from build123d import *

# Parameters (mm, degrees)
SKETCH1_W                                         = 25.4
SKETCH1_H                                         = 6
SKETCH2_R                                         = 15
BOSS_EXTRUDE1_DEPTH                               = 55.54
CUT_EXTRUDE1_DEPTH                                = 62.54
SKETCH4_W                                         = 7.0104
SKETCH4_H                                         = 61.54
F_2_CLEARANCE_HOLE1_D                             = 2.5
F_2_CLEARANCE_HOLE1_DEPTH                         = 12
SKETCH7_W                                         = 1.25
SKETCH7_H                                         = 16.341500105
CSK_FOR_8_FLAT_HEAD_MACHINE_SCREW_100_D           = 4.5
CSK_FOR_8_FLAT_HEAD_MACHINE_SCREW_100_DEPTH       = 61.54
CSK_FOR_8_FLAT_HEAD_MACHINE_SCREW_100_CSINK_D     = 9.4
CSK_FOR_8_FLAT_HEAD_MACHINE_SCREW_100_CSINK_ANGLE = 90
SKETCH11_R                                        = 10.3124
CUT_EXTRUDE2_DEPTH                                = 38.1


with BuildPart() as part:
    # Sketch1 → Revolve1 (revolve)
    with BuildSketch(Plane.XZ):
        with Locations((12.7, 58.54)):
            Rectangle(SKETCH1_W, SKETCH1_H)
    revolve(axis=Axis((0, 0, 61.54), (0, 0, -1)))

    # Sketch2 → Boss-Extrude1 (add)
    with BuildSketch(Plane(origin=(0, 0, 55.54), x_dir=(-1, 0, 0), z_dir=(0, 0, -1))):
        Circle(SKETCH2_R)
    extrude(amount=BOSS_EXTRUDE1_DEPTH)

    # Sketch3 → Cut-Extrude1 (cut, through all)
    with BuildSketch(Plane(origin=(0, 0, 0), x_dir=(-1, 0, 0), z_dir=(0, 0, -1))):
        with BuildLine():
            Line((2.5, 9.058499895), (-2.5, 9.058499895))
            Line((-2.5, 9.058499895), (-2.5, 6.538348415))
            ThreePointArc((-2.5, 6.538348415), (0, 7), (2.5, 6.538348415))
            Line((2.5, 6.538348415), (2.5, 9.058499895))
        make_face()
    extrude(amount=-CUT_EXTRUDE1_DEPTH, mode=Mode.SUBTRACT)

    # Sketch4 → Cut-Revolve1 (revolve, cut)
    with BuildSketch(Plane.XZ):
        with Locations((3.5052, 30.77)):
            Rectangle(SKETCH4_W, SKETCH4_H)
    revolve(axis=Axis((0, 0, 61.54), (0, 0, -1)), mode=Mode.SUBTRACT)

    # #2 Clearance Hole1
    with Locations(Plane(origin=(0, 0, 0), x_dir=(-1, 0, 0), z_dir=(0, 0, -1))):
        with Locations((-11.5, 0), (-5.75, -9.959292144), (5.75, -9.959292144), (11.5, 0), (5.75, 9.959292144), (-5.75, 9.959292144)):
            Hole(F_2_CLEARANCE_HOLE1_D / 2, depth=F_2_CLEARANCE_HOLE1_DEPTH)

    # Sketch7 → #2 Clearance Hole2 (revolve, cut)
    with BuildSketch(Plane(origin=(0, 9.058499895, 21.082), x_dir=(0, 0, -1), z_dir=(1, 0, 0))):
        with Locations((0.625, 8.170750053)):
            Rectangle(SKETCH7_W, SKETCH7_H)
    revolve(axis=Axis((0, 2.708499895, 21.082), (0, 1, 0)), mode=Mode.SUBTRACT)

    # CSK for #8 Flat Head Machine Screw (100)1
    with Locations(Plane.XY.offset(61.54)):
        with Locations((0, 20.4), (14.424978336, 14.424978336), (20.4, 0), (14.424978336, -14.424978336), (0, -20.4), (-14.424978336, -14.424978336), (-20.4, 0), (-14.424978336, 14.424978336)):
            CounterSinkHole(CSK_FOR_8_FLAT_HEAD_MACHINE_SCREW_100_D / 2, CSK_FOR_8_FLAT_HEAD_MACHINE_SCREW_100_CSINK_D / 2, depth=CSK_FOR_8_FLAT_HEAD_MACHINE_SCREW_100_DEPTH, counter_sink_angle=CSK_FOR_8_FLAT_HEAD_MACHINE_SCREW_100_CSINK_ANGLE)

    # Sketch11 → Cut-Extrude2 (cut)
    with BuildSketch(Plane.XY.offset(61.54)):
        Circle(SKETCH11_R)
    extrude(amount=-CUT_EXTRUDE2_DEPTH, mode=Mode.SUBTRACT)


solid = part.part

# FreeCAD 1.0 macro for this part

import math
import FreeCAD as App
import Part
import Sketcher
Q = App.Units.Quantity

doc = App.newDocument("Part")
body = doc.addObject("PartDesign::Body", "Body")

sketch1 = body.newObject("Sketcher::SketchObject", "Sketch")
sketch1.AttachmentSupport = (doc.getObject("XZ_Plane"), [""])
sketch1.MapMode = "FlatFace"
sketch1.addGeometry([
    Part.LineSegment(App.Vector(0, 61.54, 0), App.Vector(0, 55.54, 0)),
    Part.LineSegment(App.Vector(0, 55.54, 0), App.Vector(25.4, 55.54, 0)),
    Part.LineSegment(App.Vector(25.4, 55.54, 0), App.Vector(25.4, 61.54, 0)),
    Part.LineSegment(App.Vector(25.4, 61.54, 0), App.Vector(0, 61.54, 0)),
], False)
sketch1.addConstraint([
    Sketcher.Constraint("Coincident", 0, 2, 1, 1),
    Sketcher.Constraint("Coincident", 1, 2, 2, 1),
    Sketcher.Constraint("Coincident", 2, 2, 3, 1),
    Sketcher.Constraint("Coincident", 3, 2, 0, 1),
    Sketcher.Constraint("Vertical", 0),
    Sketcher.Constraint("Horizontal", 1),
    Sketcher.Constraint("Vertical", 2),
    Sketcher.Constraint("Horizontal", 3),
    Sketcher.Constraint("PointOnObject", 0, 2, -2),
    Sketcher.Constraint("DistanceY", 0, 2, 0, 1, Q("6 mm")),
    Sketcher.Constraint("DistanceX", 1, 1, 1, 2, Q("25.4 mm")),
    Sketcher.Constraint("DistanceY", -1, 1, 0, 2, Q("55.54 mm")),
])
revolution = body.newObject("PartDesign::Revolution", "Revolution")
revolution.Profile = sketch1
revolution.ReferenceAxis = (sketch1, ["V_Axis"])
revolution.Angle = 360

sketch2 = body.newObject("Sketcher::SketchObject", "Sketch001")
sketch2.AttachmentSupport = (doc.getObject("XY_Plane"), [""])
sketch2.MapMode = "FlatFace"
sketch2.AttachmentOffset = App.Placement(App.Vector(0, 0, 55.54), App.Rotation())
sketch2.addGeometry(Part.Circle(App.Vector(0, 0, 0), App.Vector(0, 0, 1), 15), False)
sketch2.addConstraint([
    Sketcher.Constraint("Coincident", 0, 3, -1, 1),
    Sketcher.Constraint("Diameter", 0, Q("30 mm")),
])
pad1 = body.newObject("PartDesign::Pad", "Pad")
pad1.Profile = sketch2
pad1.Length = 55.54
pad1.Reversed = True

sketch3 = body.newObject("Sketcher::SketchObject", "Sketch002")
sketch3.AttachmentSupport = (doc.getObject("XY_Plane"), [""])
sketch3.MapMode = "FlatFace"
sketch3.addGeometry([
    Part.LineSegment(App.Vector(-2.5, 9.0585, 0), App.Vector(2.5, 9.0585, 0)),
    Part.LineSegment(App.Vector(2.5, 9.0585, 0), App.Vector(2.5, 6.538348, 0)),
    Part.ArcOfCircle(Part.Circle(App.Vector(0, 0, 0), App.Vector(0, 0, 1), 7), math.radians(69.075168), math.radians(110.924832)),
    Part.LineSegment(App.Vector(-2.5, 6.538348, 0), App.Vector(-2.5, 9.0585, 0)),
], False)
sketch3.addConstraint([
    Sketcher.Constraint("Coincident", 0, 2, 1, 1),
    Sketcher.Constraint("Coincident", 1, 2, 2, 1),
    Sketcher.Constraint("Coincident", 2, 2, 3, 1),
    Sketcher.Constraint("Coincident", 3, 2, 0, 1),
    Sketcher.Constraint("Horizontal", 0),
    Sketcher.Constraint("Vertical", 1),
    Sketcher.Constraint("Vertical", 3),
    Sketcher.Constraint("Coincident", 2, 3, -1, 1),
    Sketcher.Constraint("Horizontal", 1, 2, 2, 2),
    Sketcher.Constraint("Radius", 2, Q("7 mm")),
    Sketcher.Constraint("DistanceX", 0, 1, 0, 2, Q("5 mm")),
    Sketcher.Constraint("DistanceY", 1, 2, 1, 1, Q("2.520151 mm")),
])
pocket1 = body.newObject("PartDesign::Pocket", "Pocket")
pocket1.Profile = sketch3
pocket1.Type = "ThroughAll"
pocket1.Reversed = True

sketch4 = body.newObject("Sketcher::SketchObject", "Sketch003")
sketch4.AttachmentSupport = (doc.getObject("XZ_Plane"), [""])
sketch4.MapMode = "FlatFace"
sketch4.addGeometry([
    Part.LineSegment(App.Vector(0, 61.54, 0), App.Vector(0, 0, 0)),
    Part.LineSegment(App.Vector(0, 0, 0), App.Vector(7.0104, 0, 0)),
    Part.LineSegment(App.Vector(7.0104, 0, 0), App.Vector(7.0104, 61.54, 0)),
    Part.LineSegment(App.Vector(7.0104, 61.54, 0), App.Vector(0, 61.54, 0)),
], False)
sketch4.addConstraint([
    Sketcher.Constraint("Coincident", 0, 2, 1, 1),
    Sketcher.Constraint("Coincident", 1, 2, 2, 1),
    Sketcher.Constraint("Coincident", 2, 2, 3, 1),
    Sketcher.Constraint("Coincident", 3, 2, 0, 1),
    Sketcher.Constraint("Vertical", 0),
    Sketcher.Constraint("Horizontal", 1),
    Sketcher.Constraint("Vertical", 2),
    Sketcher.Constraint("Horizontal", 3),
    Sketcher.Constraint("Coincident", 0, 2, -1, 1),
    Sketcher.Constraint("DistanceY", 0, 2, 0, 1, Q("61.54 mm")),
    Sketcher.Constraint("DistanceX", 1, 1, 1, 2, Q("7.0104 mm")),
])
groove = body.newObject("PartDesign::Groove", "Groove")
groove.Profile = sketch4
groove.ReferenceAxis = (sketch4, ["V_Axis"])
groove.Angle = 360

sketch5 = body.newObject("Sketcher::SketchObject", "Sketch004")
sketch5.AttachmentSupport = (doc.getObject("XY_Plane"), [""])
sketch5.MapMode = "FlatFace"
sketch5.addGeometry([
    Part.Circle(App.Vector(11.5, 0, 0), App.Vector(0, 0, 1), 1.25),
    Part.Circle(App.Vector(5.75, -9.959292, 0), App.Vector(0, 0, 1), 1.25),
    Part.Circle(App.Vector(-5.75, -9.959292, 0), App.Vector(0, 0, 1), 1.25),
    Part.Circle(App.Vector(-11.5, 0, 0), App.Vector(0, 0, 1), 1.25),
    Part.Circle(App.Vector(-5.75, 9.959292, 0), App.Vector(0, 0, 1), 1.25),
    Part.Circle(App.Vector(5.75, 9.959292, 0), App.Vector(0, 0, 1), 1.25),
], False)
sketch5.addConstraint([
    Sketcher.Constraint("Equal", 0, 1),
    Sketcher.Constraint("Equal", 1, 2),
    Sketcher.Constraint("Equal", 2, 3),
    Sketcher.Constraint("Equal", 3, 4),
    Sketcher.Constraint("Equal", 4, 5),
    Sketcher.Constraint("Symmetric", 0, 3, 3, 3, -1, 1),
    Sketcher.Constraint("Symmetric", 1, 3, 4, 3, -1, 1),
    Sketcher.Constraint("Symmetric", 2, 3, 5, 3, -1, 1),
    Sketcher.Constraint("Symmetric", 1, 3, 2, 3, -2),
    Sketcher.Constraint("PointOnObject", 0, 3, -1),
    Sketcher.Constraint("Diameter", 0, Q("2.5 mm")),
    Sketcher.Constraint("DistanceX", 3, 3, 0, 3, Q("23 mm")),
    Sketcher.Constraint("DistanceX", 2, 3, 1, 3, Q("11.5 mm")),
    Sketcher.Constraint("DistanceY", 1, 3, -1, 1, Q("9.959292 mm")),
])
doc.recompute()
hole = body.newObject("PartDesign::Hole", "Hole")
hole.Profile = sketch5
hole.ThreadType = "None"
hole.Diameter = 2.5
hole.DepthType = "Dimension"
hole.Depth = 12
hole.DrillPoint = "Flat"
hole.Reversed = True

sketch6 = body.newObject("Sketcher::SketchObject", "Sketch005")
sketch6.AttachmentSupport = (doc.getObject("YZ_Plane"), [""])
sketch6.MapMode = "FlatFace"
sketch6.addGeometry([
    Part.LineSegment(App.Vector(25.4, 21.082, 0), App.Vector(9.0585, 21.082, 0)),
    Part.LineSegment(App.Vector(9.0585, 21.082, 0), App.Vector(9.0585, 19.832, 0)),
    Part.LineSegment(App.Vector(9.0585, 19.832, 0), App.Vector(25.4, 19.832, 0)),
    Part.LineSegment(App.Vector(25.4, 19.832, 0), App.Vector(25.4, 21.082, 0)),
], False)
sketch6.addGeometry(Part.LineSegment(App.Vector(9.0585, 21.082, 0), App.Vector(25.4, 21.082, 0)), True)
sketch6.addConstraint([
    Sketcher.Constraint("Coincident", 0, 2, 1, 1),
    Sketcher.Constraint("Coincident", 1, 2, 2, 1),
    Sketcher.Constraint("Coincident", 2, 2, 3, 1),
    Sketcher.Constraint("Coincident", 3, 2, 0, 1),
    Sketcher.Constraint("Horizontal", 0),
    Sketcher.Constraint("Vertical", 1),
    Sketcher.Constraint("Horizontal", 2),
    Sketcher.Constraint("Vertical", 3),
    Sketcher.Constraint("Horizontal", 4),
    Sketcher.Constraint("Coincident", 4, 1, 0, 2),
    Sketcher.Constraint("Vertical", 2, 2, 4, 2),
    Sketcher.Constraint("DistanceY", 1, 2, 1, 1, Q("1.25 mm")),
    Sketcher.Constraint("DistanceX", -1, 1, 2, 2, Q("25.4 mm")),
    Sketcher.Constraint("DistanceX", 0, 2, 0, 1, Q("16.3415 mm")),
    Sketcher.Constraint("DistanceY", -1, 1, 0, 2, Q("21.082 mm")),
])
groove2 = body.newObject("PartDesign::Groove", "Groove001")
groove2.Profile = sketch6
groove2.ReferenceAxis = (sketch6, ["Axis0"])
groove2.Angle = 360

sketch7 = body.newObject("Sketcher::SketchObject", "Sketch006")
sketch7.AttachmentSupport = (doc.getObject("XY_Plane"), [""])
sketch7.MapMode = "FlatFace"
sketch7.AttachmentOffset = App.Placement(App.Vector(0, 0, 61.54), App.Rotation())
sketch7.addGeometry([
    Part.Circle(App.Vector(0, 20.4, 0), App.Vector(0, 0, 1), 2.25),
    Part.Circle(App.Vector(14.424978, 14.424978, 0), App.Vector(0, 0, 1), 2.25),
    Part.Circle(App.Vector(20.4, 0, 0), App.Vector(0, 0, 1), 2.25),
    Part.Circle(App.Vector(14.424978, -14.424978, 0), App.Vector(0, 0, 1), 2.25),
    Part.Circle(App.Vector(0, -20.4, 0), App.Vector(0, 0, 1), 2.25),
    Part.Circle(App.Vector(-14.424978, -14.424978, 0), App.Vector(0, 0, 1), 2.25),
    Part.Circle(App.Vector(-20.4, 0, 0), App.Vector(0, 0, 1), 2.25),
    Part.Circle(App.Vector(-14.424978, 14.424978, 0), App.Vector(0, 0, 1), 2.25),
], False)
sketch7.addConstraint([
    Sketcher.Constraint("Equal", 0, 1),
    Sketcher.Constraint("Equal", 1, 2),
    Sketcher.Constraint("Equal", 2, 3),
    Sketcher.Constraint("Equal", 3, 4),
    Sketcher.Constraint("Equal", 4, 5),
    Sketcher.Constraint("Equal", 5, 6),
    Sketcher.Constraint("Equal", 6, 7),
    Sketcher.Constraint("Symmetric", 0, 3, 4, 3, -1, 1),
    Sketcher.Constraint("Symmetric", 1, 3, 5, 3, -1, 1),
    Sketcher.Constraint("Symmetric", 2, 3, 6, 3, -1, 1),
    Sketcher.Constraint("Symmetric", 3, 3, 7, 3, -1, 1),
    Sketcher.Constraint("Symmetric", 3, 3, 5, 3, -2),
    Sketcher.Constraint("PointOnObject", 0, 3, -2),
    Sketcher.Constraint("PointOnObject", 2, 3, -1),
    Sketcher.Constraint("Diameter", 0, Q("4.5 mm")),
    Sketcher.Constraint("DistanceY", -1, 1, 0, 3, Q("20.4 mm")),
    Sketcher.Constraint("DistanceX", -1, 1, 2, 3, Q("20.4 mm")),
    Sketcher.Constraint("DistanceX", -1, 1, 1, 3, Q("14.424978 mm")),
    Sketcher.Constraint("DistanceY", -1, 1, 1, 3, Q("14.424978 mm")),
])
doc.recompute()
hole2 = body.newObject("PartDesign::Hole", "Hole001")
hole2.Profile = sketch7
hole2.ThreadType = "None"
hole2.Diameter = 4.5
hole2.DepthType = "Dimension"
hole2.Depth = 61.54
hole2.DrillPoint = "Flat"
hole2.HoleCutType = "Countersink"
hole2.HoleCutDiameter = 9.4
hole2.HoleCutCountersinkAngle = 90

sketch8 = body.newObject("Sketcher::SketchObject", "Sketch007")
sketch8.AttachmentSupport = (doc.getObject("XY_Plane"), [""])
sketch8.MapMode = "FlatFace"
sketch8.AttachmentOffset = App.Placement(App.Vector(0, 0, 61.54), App.Rotation())
sketch8.addGeometry(Part.Circle(App.Vector(0, 0, 0), App.Vector(0, 0, 1), 10.3124), False)
sketch8.addConstraint([
    Sketcher.Constraint("Coincident", 0, 3, -1, 1),
    Sketcher.Constraint("Diameter", 0, Q("20.6248 mm")),
])
pocket2 = body.newObject("PartDesign::Pocket", "Pocket001")
pocket2.Profile = sketch8
pocket2.Length = 38.1

doc.recompute()
